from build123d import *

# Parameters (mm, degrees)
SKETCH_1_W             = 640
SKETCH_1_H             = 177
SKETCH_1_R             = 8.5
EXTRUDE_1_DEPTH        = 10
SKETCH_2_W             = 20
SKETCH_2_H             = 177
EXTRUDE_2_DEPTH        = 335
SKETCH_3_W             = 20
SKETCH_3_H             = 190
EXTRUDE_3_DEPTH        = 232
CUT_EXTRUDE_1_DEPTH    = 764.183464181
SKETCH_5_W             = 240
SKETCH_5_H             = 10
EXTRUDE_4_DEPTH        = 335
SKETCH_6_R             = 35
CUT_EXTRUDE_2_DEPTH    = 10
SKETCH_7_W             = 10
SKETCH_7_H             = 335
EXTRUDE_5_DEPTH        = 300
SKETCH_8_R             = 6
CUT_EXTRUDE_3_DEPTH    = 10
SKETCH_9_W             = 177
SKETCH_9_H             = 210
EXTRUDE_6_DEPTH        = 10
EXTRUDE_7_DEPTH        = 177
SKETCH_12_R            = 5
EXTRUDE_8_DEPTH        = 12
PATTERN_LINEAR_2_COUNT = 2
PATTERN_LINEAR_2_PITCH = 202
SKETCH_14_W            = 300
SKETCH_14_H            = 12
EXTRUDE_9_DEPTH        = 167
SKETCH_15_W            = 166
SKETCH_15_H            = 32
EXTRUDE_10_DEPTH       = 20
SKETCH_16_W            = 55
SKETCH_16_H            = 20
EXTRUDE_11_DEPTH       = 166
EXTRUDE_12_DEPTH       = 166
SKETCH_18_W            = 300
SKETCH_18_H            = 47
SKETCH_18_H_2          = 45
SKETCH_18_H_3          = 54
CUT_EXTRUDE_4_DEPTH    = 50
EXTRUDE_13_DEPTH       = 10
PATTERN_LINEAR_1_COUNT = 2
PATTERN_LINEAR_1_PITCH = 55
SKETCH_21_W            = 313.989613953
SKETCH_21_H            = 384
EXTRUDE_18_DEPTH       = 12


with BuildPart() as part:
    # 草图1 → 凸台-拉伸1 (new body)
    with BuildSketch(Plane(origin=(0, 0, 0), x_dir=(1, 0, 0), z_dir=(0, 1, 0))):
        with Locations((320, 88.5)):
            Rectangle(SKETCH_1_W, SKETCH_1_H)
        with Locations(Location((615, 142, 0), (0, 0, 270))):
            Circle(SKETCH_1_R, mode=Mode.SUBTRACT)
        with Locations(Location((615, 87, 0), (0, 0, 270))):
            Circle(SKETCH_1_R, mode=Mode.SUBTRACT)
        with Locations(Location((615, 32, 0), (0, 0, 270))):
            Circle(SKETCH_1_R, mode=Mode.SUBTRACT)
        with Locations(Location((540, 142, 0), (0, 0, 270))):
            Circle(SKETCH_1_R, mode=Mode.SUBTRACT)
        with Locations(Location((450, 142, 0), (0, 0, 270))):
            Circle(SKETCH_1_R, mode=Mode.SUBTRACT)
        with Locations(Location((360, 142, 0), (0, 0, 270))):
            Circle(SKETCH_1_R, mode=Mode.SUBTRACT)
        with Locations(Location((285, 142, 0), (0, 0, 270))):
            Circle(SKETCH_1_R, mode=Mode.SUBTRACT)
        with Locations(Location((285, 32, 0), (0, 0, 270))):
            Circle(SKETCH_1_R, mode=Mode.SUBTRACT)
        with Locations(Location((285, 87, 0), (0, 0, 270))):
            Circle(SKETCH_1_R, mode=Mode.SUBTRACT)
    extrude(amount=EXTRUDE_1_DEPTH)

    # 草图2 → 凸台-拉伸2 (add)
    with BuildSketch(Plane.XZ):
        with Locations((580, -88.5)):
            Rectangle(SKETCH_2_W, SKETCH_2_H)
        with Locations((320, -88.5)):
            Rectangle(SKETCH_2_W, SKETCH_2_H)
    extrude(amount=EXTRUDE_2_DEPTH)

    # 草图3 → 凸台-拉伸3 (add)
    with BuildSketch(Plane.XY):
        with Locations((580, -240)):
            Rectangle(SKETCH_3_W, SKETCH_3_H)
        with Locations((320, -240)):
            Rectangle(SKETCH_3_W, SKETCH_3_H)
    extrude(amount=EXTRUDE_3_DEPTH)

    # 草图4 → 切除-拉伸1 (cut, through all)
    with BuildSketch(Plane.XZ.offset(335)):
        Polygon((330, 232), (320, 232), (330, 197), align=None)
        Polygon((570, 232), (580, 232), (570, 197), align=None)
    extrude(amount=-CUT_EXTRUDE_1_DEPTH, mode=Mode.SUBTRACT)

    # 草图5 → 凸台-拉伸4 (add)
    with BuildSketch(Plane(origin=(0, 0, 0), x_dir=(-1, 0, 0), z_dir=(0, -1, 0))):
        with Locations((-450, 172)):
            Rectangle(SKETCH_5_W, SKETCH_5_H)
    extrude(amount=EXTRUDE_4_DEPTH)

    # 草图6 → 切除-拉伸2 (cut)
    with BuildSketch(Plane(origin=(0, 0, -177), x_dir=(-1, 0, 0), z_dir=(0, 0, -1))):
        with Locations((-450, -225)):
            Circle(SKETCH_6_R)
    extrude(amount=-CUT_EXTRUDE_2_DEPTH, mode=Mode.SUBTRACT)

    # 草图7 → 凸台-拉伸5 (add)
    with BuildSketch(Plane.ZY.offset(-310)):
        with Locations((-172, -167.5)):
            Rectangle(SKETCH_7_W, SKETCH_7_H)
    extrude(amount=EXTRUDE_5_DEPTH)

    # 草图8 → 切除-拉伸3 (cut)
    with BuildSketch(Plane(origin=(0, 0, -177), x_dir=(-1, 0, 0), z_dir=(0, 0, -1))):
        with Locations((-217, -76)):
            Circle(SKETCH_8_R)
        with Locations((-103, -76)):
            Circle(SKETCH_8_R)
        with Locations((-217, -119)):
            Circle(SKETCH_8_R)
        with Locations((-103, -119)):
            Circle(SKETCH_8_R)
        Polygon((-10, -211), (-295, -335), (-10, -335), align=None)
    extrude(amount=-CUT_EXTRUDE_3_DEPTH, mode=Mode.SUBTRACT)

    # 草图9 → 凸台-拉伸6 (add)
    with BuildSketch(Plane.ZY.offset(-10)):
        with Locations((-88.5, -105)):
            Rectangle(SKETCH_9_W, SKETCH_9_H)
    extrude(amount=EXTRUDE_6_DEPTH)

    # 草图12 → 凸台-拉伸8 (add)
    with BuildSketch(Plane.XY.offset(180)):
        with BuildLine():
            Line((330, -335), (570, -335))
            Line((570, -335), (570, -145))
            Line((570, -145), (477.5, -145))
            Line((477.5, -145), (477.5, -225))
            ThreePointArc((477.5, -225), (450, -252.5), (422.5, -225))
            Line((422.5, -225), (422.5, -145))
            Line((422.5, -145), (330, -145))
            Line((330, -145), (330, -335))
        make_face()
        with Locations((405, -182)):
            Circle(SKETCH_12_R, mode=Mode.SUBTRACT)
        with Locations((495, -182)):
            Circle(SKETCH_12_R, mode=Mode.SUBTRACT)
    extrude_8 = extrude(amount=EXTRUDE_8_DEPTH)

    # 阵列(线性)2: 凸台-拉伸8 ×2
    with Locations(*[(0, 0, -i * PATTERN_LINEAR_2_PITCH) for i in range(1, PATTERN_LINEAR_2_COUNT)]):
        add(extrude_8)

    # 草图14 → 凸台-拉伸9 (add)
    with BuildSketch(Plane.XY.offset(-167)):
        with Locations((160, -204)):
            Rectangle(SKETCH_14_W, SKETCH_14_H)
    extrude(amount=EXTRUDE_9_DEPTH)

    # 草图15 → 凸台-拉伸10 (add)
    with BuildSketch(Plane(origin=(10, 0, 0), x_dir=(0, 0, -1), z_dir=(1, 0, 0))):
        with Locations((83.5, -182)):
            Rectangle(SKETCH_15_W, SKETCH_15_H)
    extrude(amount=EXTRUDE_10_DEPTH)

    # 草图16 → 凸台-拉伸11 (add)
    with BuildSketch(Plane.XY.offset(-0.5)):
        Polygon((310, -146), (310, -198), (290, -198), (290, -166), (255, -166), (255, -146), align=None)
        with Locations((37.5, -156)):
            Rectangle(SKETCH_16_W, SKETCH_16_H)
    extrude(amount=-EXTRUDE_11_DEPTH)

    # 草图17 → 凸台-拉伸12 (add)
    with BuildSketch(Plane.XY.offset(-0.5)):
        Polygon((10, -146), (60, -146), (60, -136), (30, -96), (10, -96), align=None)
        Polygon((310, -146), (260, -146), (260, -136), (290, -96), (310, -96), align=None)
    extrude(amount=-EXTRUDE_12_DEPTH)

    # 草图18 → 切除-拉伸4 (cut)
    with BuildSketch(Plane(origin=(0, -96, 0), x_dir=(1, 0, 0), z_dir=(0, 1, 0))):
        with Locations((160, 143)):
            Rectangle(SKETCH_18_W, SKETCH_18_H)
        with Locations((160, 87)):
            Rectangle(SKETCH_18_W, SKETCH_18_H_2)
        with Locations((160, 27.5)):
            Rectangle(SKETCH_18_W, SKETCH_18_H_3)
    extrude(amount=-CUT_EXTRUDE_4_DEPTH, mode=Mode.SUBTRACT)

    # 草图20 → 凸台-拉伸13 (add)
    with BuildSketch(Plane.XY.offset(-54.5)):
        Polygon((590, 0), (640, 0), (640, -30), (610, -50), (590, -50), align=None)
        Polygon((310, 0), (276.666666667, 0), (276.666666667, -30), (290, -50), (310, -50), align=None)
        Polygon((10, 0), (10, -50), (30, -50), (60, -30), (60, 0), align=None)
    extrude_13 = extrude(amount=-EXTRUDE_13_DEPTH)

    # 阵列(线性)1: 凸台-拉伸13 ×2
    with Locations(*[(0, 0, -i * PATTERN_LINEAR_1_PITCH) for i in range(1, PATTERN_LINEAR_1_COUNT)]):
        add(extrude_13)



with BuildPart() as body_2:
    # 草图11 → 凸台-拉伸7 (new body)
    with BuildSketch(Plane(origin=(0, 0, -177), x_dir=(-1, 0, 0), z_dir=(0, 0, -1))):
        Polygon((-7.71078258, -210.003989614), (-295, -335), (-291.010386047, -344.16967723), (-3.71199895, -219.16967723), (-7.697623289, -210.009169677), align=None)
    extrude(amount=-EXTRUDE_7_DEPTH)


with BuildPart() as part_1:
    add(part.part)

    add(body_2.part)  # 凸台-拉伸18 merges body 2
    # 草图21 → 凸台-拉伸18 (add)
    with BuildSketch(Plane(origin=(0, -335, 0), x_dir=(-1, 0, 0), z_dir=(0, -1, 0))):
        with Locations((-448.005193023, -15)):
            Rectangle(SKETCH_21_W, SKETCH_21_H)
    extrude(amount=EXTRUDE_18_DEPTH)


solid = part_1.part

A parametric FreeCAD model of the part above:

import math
import FreeCAD as App
import Part
import Sketcher

V = App.Vector


def add_polygon(sketch, points):
    """Adds a closed chain of lines whose ends are joined by coincident constraints."""
    first, n = sketch.GeometryCount, len(points)
    for a, b in zip(points, points[1:] + points[:1]):
        sketch.addGeometry(Part.LineSegment(App.Vector(*a, 0), App.Vector(*b, 0)), False)
    for i in range(n):
        sketch.addConstraint(Sketcher.Constraint("Coincident", first + i, 2, first + (i + 1) % n, 1))

doc = App.newDocument("Part")
body = doc.addObject("PartDesign::Body", "Body")

sketch1 = body.newObject("Sketcher::SketchObject", "Sketch")
sketch1.AttachmentSupport = (doc.getObject("XZ_Plane"), [""])
sketch1.MapMode = "FlatFace"
add_polygon(sketch1, [(0, -177), (0, 0), (640, 0), (640, -177)])
sketch1.addGeometry(Part.Circle(V(285, -32, 0), V(0, 0, 1), 8), False)
sketch1.addGeometry(Part.Circle(V(615, -32, 0), V(0, 0, 1), 8), False)
sketch1.addGeometry(Part.Circle(V(285, -87, 0), V(0, 0, 1), 8), False)
sketch1.addGeometry(Part.Circle(V(285, -142, 0), V(0, 0, 1), 8), False)
sketch1.addGeometry(Part.Circle(V(360, -142, 0), V(0, 0, 1), 8), False)
sketch1.addGeometry(Part.Circle(V(450, -142, 0), V(0, 0, 1), 8), False)
sketch1.addGeometry(Part.Circle(V(615, -87, 0), V(0, 0, 1), 8), False)
sketch1.addGeometry(Part.Circle(V(540, -142, 0), V(0, 0, 1), 8), False)
sketch1.addGeometry(Part.Circle(V(615, -142, 0), V(0, 0, 1), 8), False)
sketch1.addConstraint(Sketcher.Constraint("Vertical", 0))
sketch1.addConstraint(Sketcher.Constraint("Horizontal", 1))
sketch1.addConstraint(Sketcher.Constraint("Vertical", 2))
sketch1.addConstraint(Sketcher.Constraint("Horizontal", 3))
sketch1.addConstraint(Sketcher.Constraint("Coincident", 0, 2, -1, 1))
sketch1.addConstraint(Sketcher.Constraint("Equal", 4, 5))
sketch1.addConstraint(Sketcher.Constraint("Equal", 5, 6))
sketch1.addConstraint(Sketcher.Constraint("Equal", 6, 7))
sketch1.addConstraint(Sketcher.Constraint("Equal", 7, 8))
sketch1.addConstraint(Sketcher.Constraint("Equal", 8, 9))
sketch1.addConstraint(Sketcher.Constraint("Equal", 9, 10))
sketch1.addConstraint(Sketcher.Constraint("Equal", 10, 11))
sketch1.addConstraint(Sketcher.Constraint("Equal", 11, 12))
sketch1.addConstraint(Sketcher.Constraint("Horizontal", 4, 3, 5, 3))
sketch1.addConstraint(Sketcher.Constraint("Horizontal", 7, 3, 8, 3))
sketch1.addConstraint(Sketcher.Constraint("Horizontal", 8, 3, 9, 3))
sketch1.addConstraint(Sketcher.Constraint("Horizontal", 6, 3, 10, 3))
sketch1.addConstraint(Sketcher.Constraint("Horizontal", 9, 3, 11, 3))
sketch1.addConstraint(Sketcher.Constraint("Horizontal", 11, 3, 12, 3))
sketch1.addConstraint(Sketcher.Constraint("Vertical", 4, 3, 6, 3))
sketch1.addConstraint(Sketcher.Constraint("Vertical", 6, 3, 7, 3))
sketch1.addConstraint(Sketcher.Constraint("Vertical", 5, 3, 10, 3))
sketch1.addConstraint(Sketcher.Constraint("Vertical", 10, 3, 12, 3))
sketch1.addConstraint(Sketcher.Constraint("Diameter", 4, 17.0))
sketch1.addConstraint(Sketcher.Constraint("DistanceX", 1, 1, 1, 2, 640.0))
sketch1.addConstraint(Sketcher.Constraint("DistanceY", 0, 1, 0, 2, 177.0))
sketch1.addConstraint(Sketcher.Constraint("DistanceX", -1, 1, 4, 3, 285.0))
sketch1.addConstraint(Sketcher.Constraint("DistanceY", 4, 3, -1, 1, 32.0))
sketch1.addConstraint(Sketcher.Constraint("DistanceX", -1, 1, 5, 3, 615.0))
sketch1.addConstraint(Sketcher.Constraint("DistanceY", 6, 3, -1, 1, 87.0))
sketch1.addConstraint(Sketcher.Constraint("DistanceY", 7, 3, -1, 1, 142.0))
sketch1.addConstraint(Sketcher.Constraint("DistanceX", -1, 1, 8, 3, 360.0))
sketch1.addConstraint(Sketcher.Constraint("DistanceX", -1, 1, 9, 3, 450.0))
sketch1.addConstraint(Sketcher.Constraint("DistanceX", -1, 1, 11, 3, 540.0))
pad1 = body.newObject("PartDesign::Pad", "Pad")
pad1.Profile = sketch1
pad1.Length = 10
pad1.Reversed = True

sketch2 = body.newObject("Sketcher::SketchObject", "Sketch001")
sketch2.AttachmentSupport = (doc.getObject("XZ_Plane"), [""])
sketch2.MapMode = "FlatFace"
add_polygon(sketch2, [(570, 0), (570, -177), (590, -177), (590, 0)])
add_polygon(sketch2, [(310, 0), (310, -177), (330, -177), (330, 0)])
sketch2.addConstraint(Sketcher.Constraint("Vertical", 0))
sketch2.addConstraint(Sketcher.Constraint("Horizontal", 1))
sketch2.addConstraint(Sketcher.Constraint("Vertical", 2))
sketch2.addConstraint(Sketcher.Constraint("Horizontal", 3))
sketch2.addConstraint(Sketcher.Constraint("Vertical", 4))
sketch2.addConstraint(Sketcher.Constraint("Horizontal", 5))
sketch2.addConstraint(Sketcher.Constraint("Vertical", 6))
sketch2.addConstraint(Sketcher.Constraint("Horizontal", 7))
sketch2.addConstraint(Sketcher.Constraint("PointOnObject", 2, 2, -1))
sketch2.addConstraint(Sketcher.Constraint("PointOnObject", 6, 2, -1))
sketch2.addConstraint(Sketcher.Constraint("Horizontal", 1, 2, 4, 2))
sketch2.addConstraint(Sketcher.Constraint("Equal", 3, 5))
sketch2.addConstraint(Sketcher.Constraint("DistanceX", 1, 1, 1, 2, 20.0))
sketch2.addConstraint(Sketcher.Constraint("DistanceY", 0, 2, 0, 1, 177.0))
sketch2.addConstraint(Sketcher.Constraint("DistanceX", -1, 1, 0, 2, 570.0))
sketch2.addConstraint(Sketcher.Constraint("DistanceX", -1, 1, 4, 2, 310.0))
pad2 = body.newObject("PartDesign::Pad", "Pad001")
pad2.Profile = sketch2
pad2.Length = 335

sketch3 = body.newObject("Sketcher::SketchObject", "Sketch002")
sketch3.AttachmentSupport = (doc.getObject("XY_Plane"), [""])
sketch3.MapMode = "FlatFace"
add_polygon(sketch3, [(570, -145), (570, -335), (590, -335), (590, -145)])
add_polygon(sketch3, [(310, -145), (310, -335), (330, -335), (330, -145)])
sketch3.addConstraint(Sketcher.Constraint("Vertical", 0))
sketch3.addConstraint(Sketcher.Constraint("Horizontal", 1))
sketch3.addConstraint(Sketcher.Constraint("Vertical", 2))
sketch3.addConstraint(Sketcher.Constraint("Horizontal", 3))
sketch3.addConstraint(Sketcher.Constraint("Vertical", 4))
sketch3.addConstraint(Sketcher.Constraint("Horizontal", 5))
sketch3.addConstraint(Sketcher.Constraint("Vertical", 6))
sketch3.addConstraint(Sketcher.Constraint("Horizontal", 7))
sketch3.addConstraint(Sketcher.Constraint("Horizontal", 1, 2, 4, 2))
sketch3.addConstraint(Sketcher.Constraint("Horizontal", 3, 2, 6, 2))
sketch3.addConstraint(Sketcher.Constraint("Equal", 3, 5))
sketch3.addConstraint(Sketcher.Constraint("DistanceX", 1, 1, 1, 2, 20.0))
sketch3.addConstraint(Sketcher.Constraint("DistanceY", 0, 2, 0, 1, 190.0))
sketch3.addConstraint(Sketcher.Constraint("DistanceX", -1, 1, 0, 2, 570.0))
sketch3.addConstraint(Sketcher.Constraint("DistanceY", 0, 2, -1, 1, 335.0))
sketch3.addConstraint(Sketcher.Constraint("DistanceX", -1, 1, 4, 2, 310.0))
pad3 = body.newObject("PartDesign::Pad", "Pad002")
pad3.Profile = sketch3
pad3.Length = 232

sketch4 = body.newObject("Sketcher::SketchObject", "Sketch003")
sketch4.AttachmentSupport = (doc.getObject("XZ_Plane"), [""])
sketch4.MapMode = "FlatFace"
sketch4.AttachmentOffset = App.Placement(V(0, 0, 335), App.Rotation())
add_polygon(sketch4, [(330, 232), (320, 232), (330, 197)])
add_polygon(sketch4, [(580, 232), (570, 232), (570, 197)])
sketch4.addConstraint(Sketcher.Constraint("Horizontal", 0))
sketch4.addConstraint(Sketcher.Constraint("Vertical", 2))
sketch4.addConstraint(Sketcher.Constraint("Horizontal", 3))
sketch4.addConstraint(Sketcher.Constraint("Vertical", 4))
sketch4.addConstraint(Sketcher.Constraint("Horizontal", 2, 2, 3, 2))
sketch4.addConstraint(Sketcher.Constraint("Horizontal", 1, 2, 4, 2))
sketch4.addConstraint(Sketcher.Constraint("Equal", 0, 3))
sketch4.addConstraint(Sketcher.Constraint("DistanceX", 0, 2, 0, 1, 10.0))
sketch4.addConstraint(Sketcher.Constraint("DistanceY", 2, 1, 2, 2, 35.0))
sketch4.addConstraint(Sketcher.Constraint("DistanceX", -1, 1, 0, 2, 320.0))
sketch4.addConstraint(Sketcher.Constraint("DistanceY", -1, 1, 0, 2, 232.0))
sketch4.addConstraint(Sketcher.Constraint("DistanceX", -1, 1, 3, 2, 570.0))
pocket1 = body.newObject("PartDesign::Pocket", "Pocket")
pocket1.Profile = sketch4
pocket1.Type = "ThroughAll"

sketch5 = body.newObject("Sketcher::SketchObject", "Sketch004")
sketch5.AttachmentSupport = (doc.getObject("XZ_Plane"), [""])
sketch5.MapMode = "FlatFace"
add_polygon(sketch5, [(570, -177), (570, -167), (330, -167), (330, -177)])
sketch5.addConstraint(Sketcher.Constraint("Vertical", 0))
sketch5.addConstraint(Sketcher.Constraint("Horizontal", 1))
sketch5.addConstraint(Sketcher.Constraint("Vertical", 2))
sketch5.addConstraint(Sketcher.Constraint("Horizontal", 3))
sketch5.addConstraint(Sketcher.Constraint("DistanceX", 1, 2, 1, 1, 240.0))
sketch5.addConstraint(Sketcher.Constraint("DistanceY", 0, 1, 0, 2, 10.0))
sketch5.addConstraint(Sketcher.Constraint("DistanceX", -1, 1, 0, 2, 570.0))
sketch5.addConstraint(Sketcher.Constraint("DistanceY", 0, 2, -1, 1, 167.0))
pad4 = body.newObject("PartDesign::Pad", "Pad003")
pad4.Profile = sketch5
pad4.Length = 335

sketch6 = body.newObject("Sketcher::SketchObject", "Sketch005")
sketch6.AttachmentSupport = (doc.getObject("XY_Plane"), [""])
sketch6.MapMode = "FlatFace"
sketch6.AttachmentOffset = App.Placement(V(0, 0, -177), App.Rotation())
sketch6.addGeometry(Part.Circle(V(450, -225, 0), V(0, 0, 1), 35), False)
sketch6.addConstraint(Sketcher.Constraint("Diameter", 0, 70.0))
sketch6.addConstraint(Sketcher.Constraint("DistanceX", -1, 1, 0, 3, 450.0))
sketch6.addConstraint(Sketcher.Constraint("DistanceY", 0, 3, -1, 1, 225.0))
pocket2 = body.newObject("PartDesign::Pocket", "Pocket001")
pocket2.Profile = sketch6
pocket2.Length = 10
pocket2.Reversed = True

sketch7 = body.newObject("Sketcher::SketchObject", "Sketch006")
sketch7.AttachmentSupport = (doc.getObject("YZ_Plane"), [""])
sketch7.MapMode = "FlatFace"
sketch7.AttachmentOffset = App.Placement(V(0, 0, 310), App.Rotation())
add_polygon(sketch7, [(0, -177), (-335, -177), (-335, -167), (0, -167)])
sketch7.addConstraint(Sketcher.Constraint("Horizontal", 0))
sketch7.addConstraint(Sketcher.Constraint("Vertical", 1))
sketch7.addConstraint(Sketcher.Constraint("Horizontal", 2))
sketch7.addConstraint(Sketcher.Constraint("Vertical", 3))
sketch7.addConstraint(Sketcher.Constraint("PointOnObject", 2, 2, -2))
sketch7.addConstraint(Sketcher.Constraint("DistanceX", 0, 2, 0, 1, 335.0))
sketch7.addConstraint(Sketcher.Constraint("DistanceY", 1, 1, 1, 2, 10.0))
sketch7.addConstraint(Sketcher.Constraint("DistanceY", 0, 2, -1, 1, 177.0))
pad5 = body.newObject("PartDesign::Pad", "Pad004")
pad5.Profile = sketch7
pad5.Length = 300
pad5.Reversed = True

sketch8 = body.newObject("Sketcher::SketchObject", "Sketch007")
sketch8.AttachmentSupport = (doc.getObject("XY_Plane"), [""])
sketch8.MapMode = "FlatFace"
sketch8.AttachmentOffset = App.Placement(V(0, 0, -177), App.Rotation())
sketch8.addGeometry(Part.Circle(V(217, -76, 0), V(0, 0, 1), 6), False)
sketch8.addGeometry(Part.Circle(V(103, -76, 0), V(0, 0, 1), 6), False)
sketch8.addGeometry(Part.Circle(V(217, -119, 0), V(0, 0, 1), 6), False)
sketch8.addGeometry(Part.Circle(V(103, -119, 0), V(0, 0, 1), 6), False)
add_polygon(sketch8, [(10, -211), (295, -335), (10, -335)])
sketch8.addConstraint(Sketcher.Constraint("Horizontal", 5))
sketch8.addConstraint(Sketcher.Constraint("Vertical", 6))
sketch8.addConstraint(Sketcher.Constraint("Equal", 0, 1))
sketch8.addConstraint(Sketcher.Constraint("Equal", 1, 2))
sketch8.addConstraint(Sketcher.Constraint("Equal", 2, 3))
sketch8.addConstraint(Sketcher.Constraint("Horizontal", 0, 3, 1, 3))
sketch8.addConstraint(Sketcher.Constraint("Horizontal", 2, 3, 3, 3))
sketch8.addConstraint(Sketcher.Constraint("Vertical", 0, 3, 2, 3))
sketch8.addConstraint(Sketcher.Constraint("Vertical", 1, 3, 3, 3))
sketch8.addConstraint(Sketcher.Constraint("Diameter", 0, 12.0))
sketch8.addConstraint(Sketcher.Constraint("DistanceX", 5, 2, 5, 1, 285.0))
sketch8.addConstraint(Sketcher.Constraint("DistanceY", 6, 1, 6, 2, 124.0))
sketch8.addConstraint(Sketcher.Constraint("DistanceX", -1, 1, 0, 3, 217.0))
sketch8.addConstraint(Sketcher.Constraint("DistanceY", 0, 3, -1, 1, 76.0))
sketch8.addConstraint(Sketcher.Constraint("DistanceX", -1, 1, 1, 3, 103.0))
sketch8.addConstraint(Sketcher.Constraint("DistanceY", 2, 3, -1, 1, 119.0))
sketch8.addConstraint(Sketcher.Constraint("DistanceX", -1, 1, 4, 2, 295.0))
sketch8.addConstraint(Sketcher.Constraint("DistanceY", 4, 2, -1, 1, 335.0))
pocket3 = body.newObject("PartDesign::Pocket", "Pocket002")
pocket3.Profile = sketch8
pocket3.Length = 10
pocket3.Reversed = True

sketch9 = body.newObject("Sketcher::SketchObject", "Sketch008")
sketch9.AttachmentSupport = (doc.getObject("YZ_Plane"), [""])
sketch9.MapMode = "FlatFace"
sketch9.AttachmentOffset = App.Placement(V(0, 0, 10), App.Rotation())
add_polygon(sketch9, [(0, -177), (-210, -177), (-210, 0), (0, 0)])
sketch9.addConstraint(Sketcher.Constraint("Horizontal", 0))
sketch9.addConstraint(Sketcher.Constraint("Vertical", 1))
sketch9.addConstraint(Sketcher.Constraint("Horizontal", 2))
sketch9.addConstraint(Sketcher.Constraint("Vertical", 3))
sketch9.addConstraint(Sketcher.Constraint("Coincident", 2, 2, -1, 1))
sketch9.addConstraint(Sketcher.Constraint("DistanceX", 0, 2, 0, 1, 210.0))
sketch9.addConstraint(Sketcher.Constraint("DistanceY", 1, 1, 1, 2, 177.0))
pad6 = body.newObject("PartDesign::Pad", "Pad005")
pad6.Profile = sketch9
pad6.Length = 10
pad6.Reversed = True

sketch10 = body.newObject("Sketcher::SketchObject", "Sketch009")
sketch10.AttachmentSupport = (doc.getObject("XY_Plane"), [""])
sketch10.MapMode = "FlatFace"
sketch10.AttachmentOffset = App.Placement(V(0, 0, 180), App.Rotation())
sketch10.addGeometry(Part.LineSegment(V(330, -335, 0), V(570, -335, 0)), False)
sketch10.addGeometry(Part.LineSegment(V(570, -335, 0), V(570, -145, 0)), False)
sketch10.addGeometry(Part.LineSegment(V(570, -145, 0), V(478, -145, 0)), False)
sketch10.addGeometry(Part.LineSegment(V(478, -145, 0), V(478, -225, 0)), False)
sketch10.addGeometry(Part.ArcOfCircle(Part.Circle(V(450, -225, 0), V(0, 0, 1), 28), math.radians(180), math.radians(360)), False)
sketch10.addGeometry(Part.LineSegment(V(422, -225, 0), V(422, -145, 0)), False)
sketch10.addGeometry(Part.LineSegment(V(422, -145, 0), V(330, -145, 0)), False)
sketch10.addGeometry(Part.LineSegment(V(330, -145, 0), V(330, -335, 0)), False)
sketch10.addGeometry(Part.Circle(V(405, -182, 0), V(0, 0, 1), 5), False)
sketch10.addGeometry(Part.Circle(V(495, -182, 0), V(0, 0, 1), 5), False)
sketch10.addConstraint(Sketcher.Constraint("Coincident", 0, 2, 1, 1))
sketch10.addConstraint(Sketcher.Constraint("Coincident", 1, 2, 2, 1))
sketch10.addConstraint(Sketcher.Constraint("Coincident", 2, 2, 3, 1))
sketch10.addConstraint(Sketcher.Constraint("Tangent", 3, 2, 4, 2))
sketch10.addConstraint(Sketcher.Constraint("Tangent", 4, 1, 5, 1))
sketch10.addConstraint(Sketcher.Constraint("Coincident", 5, 2, 6, 1))
sketch10.addConstraint(Sketcher.Constraint("Coincident", 6, 2, 7, 1))
sketch10.addConstraint(Sketcher.Constraint("Coincident", 7, 2, 0, 1))
sketch10.addConstraint(Sketcher.Constraint("Horizontal", 0))
sketch10.addConstraint(Sketcher.Constraint("Vertical", 1))
sketch10.addConstraint(Sketcher.Constraint("Horizontal", 2))
sketch10.addConstraint(Sketcher.Constraint("Vertical", 3))
sketch10.addConstraint(Sketcher.Constraint("Vertical", 5))
sketch10.addConstraint(Sketcher.Constraint("Horizontal", 6))
sketch10.addConstraint(Sketcher.Constraint("Vertical", 7))
sketch10.addConstraint(Sketcher.Constraint("Equal", 8, 9))
sketch10.addConstraint(Sketcher.Constraint("Horizontal", 8, 3, 9, 3))
sketch10.addConstraint(Sketcher.Constraint("Horizontal", 2, 2, 5, 2))
sketch10.addConstraint(Sketcher.Constraint("Equal", 2, 6))
sketch10.addConstraint(Sketcher.Constraint("Diameter", 8, 10.0))
sketch10.addConstraint(Sketcher.Constraint("Radius", 4, 27.5))
sketch10.addConstraint(Sketcher.Constraint("DistanceX", 0, 1, 0, 2, 240.0))
sketch10.addConstraint(Sketcher.Constraint("DistanceY", 1, 1, 1, 2, 190.0))
sketch10.addConstraint(Sketcher.Constraint("DistanceY", 3, 2, 3, 1, 80.0))
sketch10.addConstraint(Sketcher.Constraint("DistanceX", -1, 1, 4, 3, 450.0))
sketch10.addConstraint(Sketcher.Constraint("DistanceY", 4, 3, -1, 1, 225.0))
sketch10.addConstraint(Sketcher.Constraint("DistanceX", -1, 1, 8, 3, 405.0))
sketch10.addConstraint(Sketcher.Constraint("DistanceY", 8, 3, -1, 1, 182.0))
sketch10.addConstraint(Sketcher.Constraint("DistanceX", -1, 1, 9, 3, 495.0))
pad7 = body.newObject("PartDesign::Pad", "Pad006")
pad7.Profile = sketch10
pad7.Length = 12
doc.recompute()

linearpattern = body.newObject("PartDesign::LinearPattern", "LinearPattern")
linearpattern.Originals = [pad7]
linearpattern.Direction = (doc.getObject("Z_Axis"), [""])
linearpattern.Mode = "offset"
linearpattern.Offset = 202
linearpattern.Occurrences = 2
linearpattern.Reversed = True
body.Tip = linearpattern

sketch11 = body.newObject("Sketcher::SketchObject", "Sketch010")
sketch11.AttachmentSupport = (doc.getObject("XY_Plane"), [""])
sketch11.MapMode = "FlatFace"
sketch11.AttachmentOffset = App.Placement(V(0, 0, -167), App.Rotation())
add_polygon(sketch11, [(10, -198), (10, -210), (310, -210), (310, -198)])
sketch11.addConstraint(Sketcher.Constraint("Vertical", 0))
sketch11.addConstraint(Sketcher.Constraint("Horizontal", 1))
sketch11.addConstraint(Sketcher.Constraint("Vertical", 2))
sketch11.addConstraint(Sketcher.Constraint("Horizontal", 3))
sketch11.addConstraint(Sketcher.Constraint("DistanceX", 1, 1, 1, 2, 300.0))
sketch11.addConstraint(Sketcher.Constraint("DistanceY", 0, 2, 0, 1, 12.0))
sketch11.addConstraint(Sketcher.Constraint("DistanceX", -1, 1, 0, 2, 10.0))
sketch11.addConstraint(Sketcher.Constraint("DistanceY", 0, 2, -1, 1, 210.0))
pad8 = body.newObject("PartDesign::Pad", "Pad007")
pad8.Profile = sketch11
pad8.Length = 167

sketch12 = body.newObject("Sketcher::SketchObject", "Sketch011")
sketch12.AttachmentSupport = (doc.getObject("YZ_Plane"), [""])
sketch12.MapMode = "FlatFace"
sketch12.AttachmentOffset = App.Placement(V(0, 0, 10), App.Rotation())
add_polygon(sketch12, [(-166, 0), (-198, 0), (-198, -166), (-166, -166)])
sketch12.addConstraint(Sketcher.Constraint("Horizontal", 0))
sketch12.addConstraint(Sketcher.Constraint("Vertical", 1))
sketch12.addConstraint(Sketcher.Constraint("Horizontal", 2))
sketch12.addConstraint(Sketcher.Constraint("Vertical", 3))
sketch12.addConstraint(Sketcher.Constraint("DistanceX", 0, 2, 0, 1, 32.0))
sketch12.addConstraint(Sketcher.Constraint("DistanceY", 1, 2, 1, 1, 166.0))
sketch12.addConstraint(Sketcher.Constraint("DistanceX", 0, 2, -1, 1, 198.0))
sketch12.addConstraint(Sketcher.Constraint("DistanceY", 0, 2, -1, 1, 0.5))
pad9 = body.newObject("PartDesign::Pad", "Pad008")
pad9.Profile = sketch12
pad9.Length = 20

sketch13 = body.newObject("Sketcher::SketchObject", "Sketch012")
sketch13.AttachmentSupport = (doc.getObject("XY_Plane"), [""])
sketch13.MapMode = "FlatFace"
sketch13.AttachmentOffset = App.Placement(V(0, 0, -0.5), App.Rotation())
add_polygon(sketch13, [(310, -198), (310, -146), (255, -146), (255, -166), (290, -166), (290, -198)])
add_polygon(sketch13, [(10, -146), (10, -166), (65, -166), (65, -146)])
sketch13.addConstraint(Sketcher.Constraint("Vertical", 0))
sketch13.addConstraint(Sketcher.Constraint("Horizontal", 1))
sketch13.addConstraint(Sketcher.Constraint("Vertical", 2))
sketch13.addConstraint(Sketcher.Constraint("Horizontal", 3))
sketch13.addConstraint(Sketcher.Constraint("Vertical", 4))
sketch13.addConstraint(Sketcher.Constraint("Horizontal", 5))
sketch13.addConstraint(Sketcher.Constraint("Vertical", 6))
sketch13.addConstraint(Sketcher.Constraint("Horizontal", 7))
sketch13.addConstraint(Sketcher.Constraint("Vertical", 8))
sketch13.addConstraint(Sketcher.Constraint("Horizontal", 9))
sketch13.addConstraint(Sketcher.Constraint("Horizontal", 3, 2, 6, 2))
sketch13.addConstraint(Sketcher.Constraint("Horizontal", 1, 2, 8, 2))
sketch13.addConstraint(Sketcher.Constraint("Equal", 1, 7))
sketch13.addConstraint(Sketcher.Constraint("Equal", 5, 2))
sketch13.addConstraint(Sketcher.Constraint("DistanceX", 1, 2, 1, 1, 55.0))
sketch13.addConstraint(Sketcher.Constraint("DistanceX", 3, 1, 3, 2, 35.0))
sketch13.addConstraint(Sketcher.Constraint("DistanceY", 0, 1, 0, 2, 52.0))
sketch13.addConstraint(Sketcher.Constraint("DistanceX", -1, 1, 0, 2, 310.0))
sketch13.addConstraint(Sketcher.Constraint("DistanceY", 0, 2, -1, 1, 146.0))
sketch13.addConstraint(Sketcher.Constraint("DistanceX", -1, 1, 6, 2, 10.0))
pad10 = body.newObject("PartDesign::Pad", "Pad009")
pad10.Profile = sketch13
pad10.Length = 166
pad10.Reversed = True

sketch14 = body.newObject("Sketcher::SketchObject", "Sketch013")
sketch14.AttachmentSupport = (doc.getObject("XY_Plane"), [""])
sketch14.MapMode = "FlatFace"
sketch14.AttachmentOffset = App.Placement(V(0, 0, -0.5), App.Rotation())
add_polygon(sketch14, [(10, -146), (60, -146), (60, -136), (30, -96), (10, -96)])
add_polygon(sketch14, [(260, -146), (310, -146), (310, -96), (290, -96), (260, -136)])
sketch14.addConstraint(Sketcher.Constraint("Horizontal", 0))
sketch14.addConstraint(Sketcher.Constraint("Vertical", 1))
sketch14.addConstraint(Sketcher.Constraint("Horizontal", 3))
sketch14.addConstraint(Sketcher.Constraint("Vertical", 4))
sketch14.addConstraint(Sketcher.Constraint("Horizontal", 5))
sketch14.addConstraint(Sketcher.Constraint("Vertical", 6))
sketch14.addConstraint(Sketcher.Constraint("Horizontal", 7))
sketch14.addConstraint(Sketcher.Constraint("Vertical", 9))
sketch14.addConstraint(Sketcher.Constraint("Horizontal", 4, 2, 5, 2))
sketch14.addConstraint(Sketcher.Constraint("Horizontal", 3, 2, 6, 2))
sketch14.addConstraint(Sketcher.Constraint("Horizontal", 1, 2, 8, 2))
sketch14.addConstraint(Sketcher.Constraint("Equal", 0, 5))
sketch14.addConstraint(Sketcher.Constraint("Equal", 3, 7))
sketch14.addConstraint(Sketcher.Constraint("Equal", 5, 4))
sketch14.addConstraint(Sketcher.Constraint("DistanceX", 0, 1, 0, 2, 50.0))
sketch14.addConstraint(Sketcher.Constraint("DistanceX", 3, 2, 3, 1, 20.0))
sketch14.addConstraint(Sketcher.Constraint("DistanceY", 1, 1, 1, 2, 10.0))
sketch14.addConstraint(Sketcher.Constraint("DistanceX", -1, 1, 0, 2, 60.0))
sketch14.addConstraint(Sketcher.Constraint("DistanceY", 0, 2, -1, 1, 146.0))
sketch14.addConstraint(Sketcher.Constraint("DistanceX", -1, 1, 5, 2, 310.0))
pad11 = body.newObject("PartDesign::Pad", "Pad010")
pad11.Profile = sketch14
pad11.Length = 166
pad11.Reversed = True

sketch15 = body.newObject("Sketcher::SketchObject", "Sketch014")
sketch15.AttachmentSupport = (doc.getObject("XZ_Plane"), [""])
sketch15.MapMode = "FlatFace"
sketch15.AttachmentOffset = App.Placement(V(0, 0, 96), App.Rotation())
add_polygon(sketch15, [(10, -166), (10, -120), (310, -120), (310, -166)])
add_polygon(sketch15, [(10, -110), (10, -64), (310, -64), (310, -110)])
add_polygon(sketch15, [(10, -54), (10, 0), (310, 0), (310, -54)])
sketch15.addConstraint(Sketcher.Constraint("Vertical", 0))
sketch15.addConstraint(Sketcher.Constraint("Horizontal", 1))
sketch15.addConstraint(Sketcher.Constraint("Vertical", 2))
sketch15.addConstraint(Sketcher.Constraint("Horizontal", 3))
sketch15.addConstraint(Sketcher.Constraint("Vertical", 4))
sketch15.addConstraint(Sketcher.Constraint("Horizontal", 5))
sketch15.addConstraint(Sketcher.Constraint("Vertical", 6))
sketch15.addConstraint(Sketcher.Constraint("Horizontal", 7))
sketch15.addConstraint(Sketcher.Constraint("Vertical", 8))
sketch15.addConstraint(Sketcher.Constraint("Horizontal", 9))
sketch15.addConstraint(Sketcher.Constraint("Vertical", 10))
sketch15.addConstraint(Sketcher.Constraint("Horizontal", 11))
sketch15.addConstraint(Sketcher.Constraint("Vertical", 3, 2, 4, 2))
sketch15.addConstraint(Sketcher.Constraint("Vertical", 2, 2, 5, 2))
sketch15.addConstraint(Sketcher.Constraint("Vertical", 7, 2, 8, 2))
sketch15.addConstraint(Sketcher.Constraint("Vertical", 6, 2, 9, 2))
sketch15.addConstraint(Sketcher.Constraint("DistanceX", 1, 1, 1, 2, 300.0))
sketch15.addConstraint(Sketcher.Constraint("DistanceY", 0, 1, 0, 2, 47.0))
sketch15.addConstraint(Sketcher.Constraint("DistanceY", 4, 1, 4, 2, 45.0))
sketch15.addConstraint(Sketcher.Constraint("DistanceY", 8, 1, 8, 2, 54.0))
sketch15.addConstraint(Sketcher.Constraint("DistanceX", -1, 1, 0, 2, 10.0))
sketch15.addConstraint(Sketcher.Constraint("DistanceY", 0, 2, 4, 2, 55.0))
sketch15.addConstraint(Sketcher.Constraint("DistanceY", 4, 2, 8, 2, 64.0))
sketch15.addConstraint(Sketcher.Constraint("DistanceY", 0, 2, -1, 1, 119.5))
pocket4 = body.newObject("PartDesign::Pocket", "Pocket003")
pocket4.Profile = sketch15
pocket4.Length = 50
pocket4.Reversed = True

sketch16 = body.newObject("Sketcher::SketchObject", "Sketch015")
sketch16.AttachmentSupport = (doc.getObject("XY_Plane"), [""])
sketch16.MapMode = "FlatFace"
sketch16.AttachmentOffset = App.Placement(V(0, 0, -54.5), App.Rotation())
add_polygon(sketch16, [(640, 0), (590, 0), (590, -50), (610, -50), (640, -30)])
add_polygon(sketch16, [(310, 0), (277, 0), (277, -30), (290, -50), (310, -50)])
add_polygon(sketch16, [(10, 0), (10, -50), (30, -50), (60, -30), (60, 0)])
sketch16.addConstraint(Sketcher.Constraint("Horizontal", 0))
sketch16.addConstraint(Sketcher.Constraint("Vertical", 1))
sketch16.addConstraint(Sketcher.Constraint("Horizontal", 2))
sketch16.addConstraint(Sketcher.Constraint("Vertical", 4))
sketch16.addConstraint(Sketcher.Constraint("Horizontal", 5))
sketch16.addConstraint(Sketcher.Constraint("Vertical", 6))
sketch16.addConstraint(Sketcher.Constraint("Horizontal", 8))
sketch16.addConstraint(Sketcher.Constraint("Vertical", 9))
sketch16.addConstraint(Sketcher.Constraint("Vertical", 10))
sketch16.addConstraint(Sketcher.Constraint("Horizontal", 11))
sketch16.addConstraint(Sketcher.Constraint("Vertical", 13))
sketch16.addConstraint(Sketcher.Constraint("Horizontal", 14))
sketch16.addConstraint(Sketcher.Constraint("PointOnObject", 0, 2, -1))
sketch16.addConstraint(Sketcher.Constraint("PointOnObject", 5, 2, -1))
sketch16.addConstraint(Sketcher.Constraint("PointOnObject", 13, 2, -1))
sketch16.addConstraint(Sketcher.Constraint("Perpendicular", 3, 7))
sketch16.addConstraint(Sketcher.Constraint("Perpendicular", 7, 12))
sketch16.addConstraint(Sketcher.Constraint("Horizontal", 3, 2, 6, 2))
sketch16.addConstraint(Sketcher.Constraint("Horizontal", 2, 2, 7, 2))
sketch16.addConstraint(Sketcher.Constraint("Horizontal", 8, 2, 10, 2))
sketch16.addConstraint(Sketcher.Constraint("Horizontal", 6, 2, 12, 2))
sketch16.addConstraint(Sketcher.Constraint("Equal", 2, 8))
sketch16.addConstraint(Sketcher.Constraint("Equal", 8, 11))
sketch16.addConstraint(Sketcher.Constraint("Equal", 14, 1))
sketch16.addConstraint(Sketcher.Constraint("DistanceX", 0, 2, 0, 1, 50.0))
sketch16.addConstraint(Sketcher.Constraint("DistanceX", 2, 1, 2, 2, 20.0))
sketch16.addConstraint(Sketcher.Constraint("DistanceY", 4, 1, 4, 2, 30.0))
sketch16.addConstraint(Sketcher.Constraint("DistanceX", -1, 1, 0, 2, 590.0))
sketch16.addConstraint(Sketcher.Constraint("DistanceX", -1, 1, 7, 2, 290.0))
sketch16.addConstraint(Sketcher.Constraint("DistanceX", -1, 1, 10, 2, 10.0))
pad12 = body.newObject("PartDesign::Pad", "Pad011")
pad12.Profile = sketch16
pad12.Length = 10
pad12.Reversed = True
doc.recompute()

linearpattern2 = body.newObject("PartDesign::LinearPattern", "LinearPattern001")
linearpattern2.Originals = [pad12]
linearpattern2.Direction = (doc.getObject("Z_Axis"), [""])
linearpattern2.Mode = "offset"
linearpattern2.Offset = 55
linearpattern2.Occurrences = 2
linearpattern2.Reversed = True
body.Tip = linearpattern2
body2 = doc.addObject("PartDesign::Body", "Body001")

sketch17 = body2.newObject("Sketcher::SketchObject", "Sketch016")
sketch17.AttachmentSupport = (doc.getObject("XY_Plane001"), [""])
sketch17.MapMode = "FlatFace"
sketch17.AttachmentOffset = App.Placement(V(0, 0, -177), App.Rotation())
add_polygon(sketch17, [(7.711, -210.004), (295, -335), (291.01, -344.17), (3.712, -219.17), (7.698, -210.009)])
sketch17.addConstraint(Sketcher.Constraint("Perpendicular", 0, 1))
sketch17.addConstraint(Sketcher.Constraint("Perpendicular", 1, 2))
sketch17.addConstraint(Sketcher.Constraint("Perpendicular", 2, 3))
sketch17.addConstraint(Sketcher.Constraint("Distance", 1, 10.0))
sketch17.addConstraint(Sketcher.Constraint("DistanceX", -1, 1, 0, 2, 295.0))
sketch17.addConstraint(Sketcher.Constraint("DistanceY", 0, 2, -1, 1, 335.0))
sketch17.addConstraint(Sketcher.Constraint("DistanceY", 1, 2, 2, 2, 125.0))
sketch17.addConstraint(Sketcher.Constraint("Distance", 3, 9.99))
sketch17.addConstraint(Sketcher.Constraint("DistanceX", -1, 1, 2, 2, 3.711999))
sketch17.addConstraint(Sketcher.Constraint("DistanceY", 4, 2, -1, 1, 210.00399))
pad13 = body2.newObject("PartDesign::Pad", "Pad012")
pad13.Profile = sketch17
pad13.Length = 177
doc.recompute()

boolean = body.newObject("PartDesign::Boolean", "Boolean")
boolean.Type = "Fuse"
boolean.addObjects([body2])

sketch18 = body.newObject("Sketcher::SketchObject", "Sketch017")
sketch18.AttachmentSupport = (doc.getObject("XZ_Plane"), [""])
sketch18.MapMode = "FlatFace"
sketch18.AttachmentOffset = App.Placement(V(0, 0, 335), App.Rotation())
add_polygon(sketch18, [(605, -177), (605, 207), (291, 207), (291, -177)])
sketch18.addConstraint(Sketcher.Constraint("Vertical", 0))
sketch18.addConstraint(Sketcher.Constraint("Horizontal", 1))
sketch18.addConstraint(Sketcher.Constraint("Vertical", 2))
sketch18.addConstraint(Sketcher.Constraint("Horizontal", 3))
sketch18.addConstraint(Sketcher.Constraint("DistanceY", 0, 1, 0, 2, 384.0))
sketch18.addConstraint(Sketcher.Constraint("DistanceX", -1, 1, 0, 2, 605.0))
sketch18.addConstraint(Sketcher.Constraint("DistanceY", -1, 1, 0, 2, 207.0))
sketch18.addConstraint(Sketcher.Constraint("DistanceX", 1, 2, 1, 1, 313.989614))
pad14 = body.newObject("PartDesign::Pad", "Pad013")
pad14.Profile = sketch18
pad14.Length = 12

doc.recompute()
